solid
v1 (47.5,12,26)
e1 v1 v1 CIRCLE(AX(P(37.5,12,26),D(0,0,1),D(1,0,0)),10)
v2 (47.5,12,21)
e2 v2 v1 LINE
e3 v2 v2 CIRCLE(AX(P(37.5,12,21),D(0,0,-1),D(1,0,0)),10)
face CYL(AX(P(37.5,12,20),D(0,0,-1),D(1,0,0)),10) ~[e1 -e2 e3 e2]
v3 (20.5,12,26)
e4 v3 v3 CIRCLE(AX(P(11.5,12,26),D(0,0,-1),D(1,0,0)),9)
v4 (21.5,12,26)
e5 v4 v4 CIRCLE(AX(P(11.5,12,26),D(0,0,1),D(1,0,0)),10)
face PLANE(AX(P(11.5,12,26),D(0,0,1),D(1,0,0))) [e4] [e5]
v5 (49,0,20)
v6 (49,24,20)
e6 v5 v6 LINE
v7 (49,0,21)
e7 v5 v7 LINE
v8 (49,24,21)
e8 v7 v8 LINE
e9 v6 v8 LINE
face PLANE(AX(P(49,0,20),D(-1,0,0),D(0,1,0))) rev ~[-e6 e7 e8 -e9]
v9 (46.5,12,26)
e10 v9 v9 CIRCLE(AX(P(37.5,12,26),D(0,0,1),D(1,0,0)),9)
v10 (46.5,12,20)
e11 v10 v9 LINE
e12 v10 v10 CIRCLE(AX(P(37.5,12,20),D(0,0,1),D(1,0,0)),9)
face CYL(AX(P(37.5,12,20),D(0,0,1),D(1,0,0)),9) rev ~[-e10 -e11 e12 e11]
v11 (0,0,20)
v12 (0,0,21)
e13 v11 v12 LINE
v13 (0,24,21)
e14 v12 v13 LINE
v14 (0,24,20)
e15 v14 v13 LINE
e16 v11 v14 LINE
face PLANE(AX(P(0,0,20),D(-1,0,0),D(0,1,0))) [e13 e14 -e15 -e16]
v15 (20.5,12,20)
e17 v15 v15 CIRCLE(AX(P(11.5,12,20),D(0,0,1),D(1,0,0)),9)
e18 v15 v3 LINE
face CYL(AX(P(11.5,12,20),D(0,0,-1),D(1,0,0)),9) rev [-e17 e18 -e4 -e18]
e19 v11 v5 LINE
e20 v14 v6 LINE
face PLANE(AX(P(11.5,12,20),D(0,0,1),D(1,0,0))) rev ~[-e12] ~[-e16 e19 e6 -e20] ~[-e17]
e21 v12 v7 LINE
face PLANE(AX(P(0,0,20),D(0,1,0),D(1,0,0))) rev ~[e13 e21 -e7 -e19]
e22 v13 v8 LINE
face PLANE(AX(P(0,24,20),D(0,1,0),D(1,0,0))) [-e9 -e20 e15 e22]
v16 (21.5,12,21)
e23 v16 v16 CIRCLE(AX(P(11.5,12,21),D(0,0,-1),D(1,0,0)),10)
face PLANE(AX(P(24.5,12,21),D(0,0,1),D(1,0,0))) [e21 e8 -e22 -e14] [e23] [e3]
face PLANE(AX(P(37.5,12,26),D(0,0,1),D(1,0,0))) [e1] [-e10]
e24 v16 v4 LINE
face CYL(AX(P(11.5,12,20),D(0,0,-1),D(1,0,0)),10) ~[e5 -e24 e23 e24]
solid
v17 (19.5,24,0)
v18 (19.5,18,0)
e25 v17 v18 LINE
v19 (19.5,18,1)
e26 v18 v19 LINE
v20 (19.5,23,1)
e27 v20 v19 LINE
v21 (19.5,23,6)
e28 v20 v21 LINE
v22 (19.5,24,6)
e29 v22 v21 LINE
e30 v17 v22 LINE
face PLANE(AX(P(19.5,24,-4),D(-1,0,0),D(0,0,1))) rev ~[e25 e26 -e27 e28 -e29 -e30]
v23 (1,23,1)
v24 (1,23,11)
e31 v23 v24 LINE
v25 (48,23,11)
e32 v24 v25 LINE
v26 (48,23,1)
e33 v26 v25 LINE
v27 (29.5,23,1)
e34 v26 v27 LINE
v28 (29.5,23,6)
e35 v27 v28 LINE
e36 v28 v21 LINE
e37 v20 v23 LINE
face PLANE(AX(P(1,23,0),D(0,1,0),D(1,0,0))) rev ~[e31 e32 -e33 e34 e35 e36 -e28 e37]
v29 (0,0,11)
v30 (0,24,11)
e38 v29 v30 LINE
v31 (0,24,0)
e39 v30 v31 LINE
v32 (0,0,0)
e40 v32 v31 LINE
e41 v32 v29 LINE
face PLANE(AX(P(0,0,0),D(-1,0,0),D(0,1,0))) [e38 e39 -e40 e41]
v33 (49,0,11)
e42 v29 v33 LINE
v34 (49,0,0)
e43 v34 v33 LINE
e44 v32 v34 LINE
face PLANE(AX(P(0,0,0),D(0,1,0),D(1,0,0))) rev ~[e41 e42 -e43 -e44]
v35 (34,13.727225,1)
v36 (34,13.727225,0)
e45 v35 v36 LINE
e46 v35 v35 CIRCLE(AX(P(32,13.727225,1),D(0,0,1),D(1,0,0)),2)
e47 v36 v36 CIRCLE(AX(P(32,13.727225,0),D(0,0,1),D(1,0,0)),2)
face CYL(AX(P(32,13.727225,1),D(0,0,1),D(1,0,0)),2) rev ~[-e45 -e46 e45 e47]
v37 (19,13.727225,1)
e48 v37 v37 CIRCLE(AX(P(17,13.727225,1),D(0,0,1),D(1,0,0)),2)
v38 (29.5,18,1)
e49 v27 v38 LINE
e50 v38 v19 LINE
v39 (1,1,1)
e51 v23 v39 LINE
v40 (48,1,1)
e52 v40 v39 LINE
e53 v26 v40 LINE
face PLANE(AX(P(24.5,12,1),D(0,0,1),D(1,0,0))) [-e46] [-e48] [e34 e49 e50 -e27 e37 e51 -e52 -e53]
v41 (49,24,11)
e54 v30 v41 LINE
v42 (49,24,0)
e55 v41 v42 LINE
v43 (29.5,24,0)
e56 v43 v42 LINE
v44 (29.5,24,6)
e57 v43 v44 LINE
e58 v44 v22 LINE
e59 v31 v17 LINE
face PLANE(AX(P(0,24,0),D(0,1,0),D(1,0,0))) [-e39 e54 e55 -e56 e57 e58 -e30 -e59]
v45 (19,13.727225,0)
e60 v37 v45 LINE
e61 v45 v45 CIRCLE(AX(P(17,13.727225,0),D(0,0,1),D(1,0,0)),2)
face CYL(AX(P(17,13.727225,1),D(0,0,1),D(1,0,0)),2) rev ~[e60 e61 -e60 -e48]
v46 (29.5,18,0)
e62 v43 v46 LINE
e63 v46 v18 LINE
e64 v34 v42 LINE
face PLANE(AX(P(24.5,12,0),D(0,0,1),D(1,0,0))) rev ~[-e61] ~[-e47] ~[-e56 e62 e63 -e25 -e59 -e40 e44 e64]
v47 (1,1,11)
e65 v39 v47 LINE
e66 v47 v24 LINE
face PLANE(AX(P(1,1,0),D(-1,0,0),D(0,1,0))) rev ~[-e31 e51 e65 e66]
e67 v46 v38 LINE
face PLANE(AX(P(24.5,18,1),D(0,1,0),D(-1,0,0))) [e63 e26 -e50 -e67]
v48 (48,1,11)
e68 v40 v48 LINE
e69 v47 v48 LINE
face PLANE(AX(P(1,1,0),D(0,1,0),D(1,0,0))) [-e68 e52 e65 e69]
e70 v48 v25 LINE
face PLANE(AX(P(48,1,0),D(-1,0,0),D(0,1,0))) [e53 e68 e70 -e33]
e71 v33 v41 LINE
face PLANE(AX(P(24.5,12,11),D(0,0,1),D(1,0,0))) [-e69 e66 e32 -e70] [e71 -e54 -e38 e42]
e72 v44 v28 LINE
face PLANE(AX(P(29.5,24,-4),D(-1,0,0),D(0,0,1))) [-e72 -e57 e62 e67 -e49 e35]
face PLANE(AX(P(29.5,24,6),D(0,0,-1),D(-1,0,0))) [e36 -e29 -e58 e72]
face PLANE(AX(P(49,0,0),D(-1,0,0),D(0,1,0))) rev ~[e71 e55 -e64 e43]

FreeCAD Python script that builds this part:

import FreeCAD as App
import Part
import Sketcher

doc = App.newDocument("Part")
body = doc.addObject("PartDesign::Body", "Body")

# Sketch on XY plane
sketch1 = body.newObject("Sketcher::SketchObject", "Sketch")
sketch1.AttachmentSupport = (doc.getObject("XY_Plane"), [""])
sketch1.MapMode = "FlatFace"
sketch1.AttachmentOffset = App.Placement(App.Vector(0, 0, 20), App.Rotation())
sketch1.addGeometry([
    Part.LineSegment(App.Vector(0, 24, 0), App.Vector(0, 0, 0)),
    Part.LineSegment(App.Vector(0, 0, 0), App.Vector(49, 0, 0)),
    Part.LineSegment(App.Vector(49, 0, 0), App.Vector(49, 24, 0)),
    Part.LineSegment(App.Vector(49, 24, 0), App.Vector(0, 24, 0)),
], False)
sketch1.addConstraint([
    Sketcher.Constraint("Coincident", 0, 2, 1, 1),
    Sketcher.Constraint("Coincident", 1, 2, 2, 1),
    Sketcher.Constraint("Coincident", 2, 2, 3, 1),
    Sketcher.Constraint("Coincident", 3, 2, 0, 1),
    Sketcher.Constraint("Vertical", 0),
    Sketcher.Constraint("Horizontal", 1),
    Sketcher.Constraint("Vertical", 2),
    Sketcher.Constraint("Horizontal", 3),
    Sketcher.Constraint("Coincident", 0, 2, -1, 1),
    Sketcher.Constraint("DistanceX", 1, 1, 1, 2, 49.0),
    Sketcher.Constraint("DistanceY", 0, 2, 0, 1, 24.0),
])
pad1 = body.newObject("PartDesign::Pad", "Pad")
pad1.Profile = sketch1
pad1.Length = 1

# Sketch on XY plane
sketch2 = body.newObject("Sketcher::SketchObject", "Sketch001")
sketch2.AttachmentSupport = (doc.getObject("XY_Plane"), [""])
sketch2.MapMode = "FlatFace"
sketch2.AttachmentOffset = App.Placement(App.Vector(0, 0, 20), App.Rotation())
sketch2.addGeometry([
    Part.Circle(App.Vector(12, 12, 0), App.Vector(0, 0, 1), 10),
    Part.Circle(App.Vector(38, 12, 0), App.Vector(0, 0, 1), 10),
], False)
sketch2.addConstraint([
    Sketcher.Constraint("Equal", 0, 1),
    Sketcher.Constraint("Horizontal", 0, 3, 1, 3),
    Sketcher.Constraint("Diameter", 0, 20.0),
    Sketcher.Constraint("DistanceY", -1, 1, 0, 3, 12.0),
    Sketcher.Constraint("DistanceX", 0, 3, 1, 3, 26.0),
    Sketcher.Constraint("DistanceX", -1, 1, 0, 3, 11.5),
])
pad2 = body.newObject("PartDesign::Pad", "Pad001")
pad2.Profile = sketch2
pad2.Length = 6

# Sketch on XY plane
sketch3 = body.newObject("Sketcher::SketchObject", "Sketch002")
sketch3.AttachmentSupport = (doc.getObject("XY_Plane"), [""])
sketch3.MapMode = "FlatFace"
sketch3.AttachmentOffset = App.Placement(App.Vector(0, 0, 20), App.Rotation())
sketch3.addGeometry([
    Part.Circle(App.Vector(12, 12, 0), App.Vector(0, 0, 1), 9),
    Part.Circle(App.Vector(38, 12, 0), App.Vector(0, 0, 1), 9),
], False)
sketch3.addConstraint([
    Sketcher.Constraint("Equal", 0, 1),
    Sketcher.Constraint("Horizontal", 0, 3, 1, 3),
    Sketcher.Constraint("Diameter", 0, 18.0),
    Sketcher.Constraint("DistanceY", -1, 1, 0, 3, 12.0),
    Sketcher.Constraint("DistanceX", 0, 3, 1, 3, 26.0),
    Sketcher.Constraint("DistanceX", -1, 1, 0, 3, 11.5),
])
pocket1 = body.newObject("PartDesign::Pocket", "Pocket")
pocket1.Profile = sketch3
pocket1.Length = 20
pocket1.Midplane = True
body2 = doc.addObject("PartDesign::Body", "Body001")

# Sketch on XY plane
sketch4 = body2.newObject("Sketcher::SketchObject", "Sketch003")
sketch4.AttachmentSupport = (doc.getObject("XY_Plane001"), [""])
sketch4.MapMode = "FlatFace"
sketch4.addGeometry([
    Part.LineSegment(App.Vector(0, 24, 0), App.Vector(0, 0, 0)),
    Part.LineSegment(App.Vector(0, 0, 0), App.Vector(49, 0, 0)),
    Part.LineSegment(App.Vector(49, 0, 0), App.Vector(49, 24, 0)),
    Part.LineSegment(App.Vector(49, 24, 0), App.Vector(0, 24, 0)),
], False)
sketch4.addConstraint([
    Sketcher.Constraint("Coincident", 0, 2, 1, 1),
    Sketcher.Constraint("Coincident", 1, 2, 2, 1),
    Sketcher.Constraint("Coincident", 2, 2, 3, 1),
    Sketcher.Constraint("Coincident", 3, 2, 0, 1),
    Sketcher.Constraint("Vertical", 0),
    Sketcher.Constraint("Horizontal", 1),
    Sketcher.Constraint("Vertical", 2),
    Sketcher.Constraint("Horizontal", 3),
    Sketcher.Constraint("Coincident", 0, 2, -1, 1),
    Sketcher.Constraint("DistanceX", 1, 1, 1, 2, 49.0),
    Sketcher.Constraint("DistanceY", 0, 2, 0, 1, 24.0),
])
pad3 = body2.newObject("PartDesign::Pad", "Pad002")
pad3.Profile = sketch4
pad3.Length = 1

# Sketch on XY plane
sketch5 = body2.newObject("Sketcher::SketchObject", "Sketch004")
sketch5.AttachmentSupport = (doc.getObject("XY_Plane001"), [""])
sketch5.MapMode = "FlatFace"
sketch5.addGeometry([
    Part.LineSegment(App.Vector(0, 24, 0), App.Vector(0, 0, 0)),  # 0
    Part.LineSegment(App.Vector(0, 0, 0), App.Vector(49, 0, 0)),  # 1
    Part.LineSegment(App.Vector(49, 0, 0), App.Vector(49, 24, 0)),  # 2
    Part.LineSegment(App.Vector(49, 24, 0), App.Vector(0, 24, 0)),  # 3
    Part.LineSegment(App.Vector(48, 1, 0), App.Vector(1, 1, 0)),  # 4
    Part.LineSegment(App.Vector(1, 1, 0), App.Vector(1, 23, 0)),  # 5
    Part.LineSegment(App.Vector(1, 23, 0), App.Vector(48, 23, 0)),  # 6
    Part.LineSegment(App.Vector(48, 23, 0), App.Vector(48, 1, 0)),  # 7
], False)
sketch5.addConstraint([
    Sketcher.Constraint("Coincident", 0, 2, 1, 1),
    Sketcher.Constraint("Coincident", 1, 2, 2, 1),
    Sketcher.Constraint("Coincident", 2, 2, 3, 1),
    Sketcher.Constraint("Coincident", 3, 2, 0, 1),
    Sketcher.Constraint("Coincident", 4, 2, 5, 1),
    Sketcher.Constraint("Coincident", 5, 2, 6, 1),
    Sketcher.Constraint("Coincident", 6, 2, 7, 1),
    Sketcher.Constraint("Coincident", 7, 2, 4, 1),
    Sketcher.Constraint("Vertical", 0),
    Sketcher.Constraint("Horizontal", 1),
    Sketcher.Constraint("Vertical", 2),
    Sketcher.Constraint("Horizontal", 3),
    Sketcher.Constraint("Horizontal", 4),
    Sketcher.Constraint("Vertical", 5),
    Sketcher.Constraint("Horizontal", 6),
    Sketcher.Constraint("Vertical", 7),
    Sketcher.Constraint("Coincident", 0, 2, -1, 1),
    Sketcher.Constraint("DistanceX", 1, 1, 1, 2, 49.0),
    Sketcher.Constraint("DistanceX", 4, 2, 4, 1, 47.0),
    Sketcher.Constraint("DistanceY", 0, 2, 0, 1, 24.0),
    Sketcher.Constraint("DistanceY", 5, 1, 5, 2, 22.0),
    Sketcher.Constraint("DistanceX", -1, 1, 4, 2, 1.0),
    Sketcher.Constraint("DistanceY", -1, 1, 4, 2, 1.0),
])
pad4 = body2.newObject("PartDesign::Pad", "Pad003")
pad4.Profile = sketch5
pad4.Length = 11

# Sketch on XZ plane
sketch6 = body2.newObject("Sketcher::SketchObject", "Sketch005")
sketch6.AttachmentSupport = (doc.getObject("XZ_Plane001"), [""])
sketch6.MapMode = "FlatFace"
sketch6.AttachmentOffset = App.Placement(App.Vector(0, 0, -24), App.Rotation())
sketch6.addGeometry([
    Part.LineSegment(App.Vector(30, 6, 0), App.Vector(30, -4, 0)),
    Part.LineSegment(App.Vector(30, -4, 0), App.Vector(20, -4, 0)),
    Part.LineSegment(App.Vector(20, -4, 0), App.Vector(20, 6, 0)),
    Part.LineSegment(App.Vector(20, 6, 0), App.Vector(30, 6, 0)),
], False)
sketch6.addConstraint([
    Sketcher.Constraint("Coincident", 0, 2, 1, 1),
    Sketcher.Constraint("Coincident", 1, 2, 2, 1),
    Sketcher.Constraint("Coincident", 2, 2, 3, 1),
    Sketcher.Constraint("Coincident", 3, 2, 0, 1),
    Sketcher.Constraint("Vertical", 0),
    Sketcher.Constraint("Horizontal", 1),
    Sketcher.Constraint("Vertical", 2),
    Sketcher.Constraint("Horizontal", 3),
    Sketcher.Constraint("Equal", 3, 0),
    Sketcher.Constraint("DistanceX", 1, 2, 1, 1, 10.0),
    Sketcher.Constraint("DistanceY", 0, 2, -1, 1, 4.0),
    Sketcher.Constraint("DistanceX", -1, 1, 0, 2, 29.5),
])
pocket2 = body2.newObject("PartDesign::Pocket", "Pocket001")
pocket2.Profile = sketch6
pocket2.Length = 6
pocket2.Reversed = True

# Sketch on XY plane
sketch7 = body2.newObject("Sketcher::SketchObject", "Sketch006")
sketch7.AttachmentSupport = (doc.getObject("XY_Plane001"), [""])
sketch7.MapMode = "FlatFace"
sketch7.AttachmentOffset = App.Placement(App.Vector(0, 0, 1), App.Rotation())
sketch7.addGeometry([
    Part.Circle(App.Vector(17, 13.7, 0), App.Vector(0, 0, 1), 2),
    Part.Circle(App.Vector(32, 13.7, 0), App.Vector(0, 0, 1), 2),
], False)
sketch7.addConstraint([
    Sketcher.Constraint("Equal", 0, 1),
    Sketcher.Constraint("Horizontal", 0, 3, 1, 3),
    Sketcher.Constraint("Diameter", 0, 4.0),
    Sketcher.Constraint("DistanceX", -1, 1, 0, 3, 17.0),
    Sketcher.Constraint("DistanceX", -1, 1, 1, 3, 32.0),
    Sketcher.Constraint("DistanceY", -1, 1, 0, 3, 13.727225),
])
pocket3 = body2.newObject("PartDesign::Pocket", "Pocket002")
pocket3.Profile = sketch7
pocket3.Length = 5

doc.recompute()
